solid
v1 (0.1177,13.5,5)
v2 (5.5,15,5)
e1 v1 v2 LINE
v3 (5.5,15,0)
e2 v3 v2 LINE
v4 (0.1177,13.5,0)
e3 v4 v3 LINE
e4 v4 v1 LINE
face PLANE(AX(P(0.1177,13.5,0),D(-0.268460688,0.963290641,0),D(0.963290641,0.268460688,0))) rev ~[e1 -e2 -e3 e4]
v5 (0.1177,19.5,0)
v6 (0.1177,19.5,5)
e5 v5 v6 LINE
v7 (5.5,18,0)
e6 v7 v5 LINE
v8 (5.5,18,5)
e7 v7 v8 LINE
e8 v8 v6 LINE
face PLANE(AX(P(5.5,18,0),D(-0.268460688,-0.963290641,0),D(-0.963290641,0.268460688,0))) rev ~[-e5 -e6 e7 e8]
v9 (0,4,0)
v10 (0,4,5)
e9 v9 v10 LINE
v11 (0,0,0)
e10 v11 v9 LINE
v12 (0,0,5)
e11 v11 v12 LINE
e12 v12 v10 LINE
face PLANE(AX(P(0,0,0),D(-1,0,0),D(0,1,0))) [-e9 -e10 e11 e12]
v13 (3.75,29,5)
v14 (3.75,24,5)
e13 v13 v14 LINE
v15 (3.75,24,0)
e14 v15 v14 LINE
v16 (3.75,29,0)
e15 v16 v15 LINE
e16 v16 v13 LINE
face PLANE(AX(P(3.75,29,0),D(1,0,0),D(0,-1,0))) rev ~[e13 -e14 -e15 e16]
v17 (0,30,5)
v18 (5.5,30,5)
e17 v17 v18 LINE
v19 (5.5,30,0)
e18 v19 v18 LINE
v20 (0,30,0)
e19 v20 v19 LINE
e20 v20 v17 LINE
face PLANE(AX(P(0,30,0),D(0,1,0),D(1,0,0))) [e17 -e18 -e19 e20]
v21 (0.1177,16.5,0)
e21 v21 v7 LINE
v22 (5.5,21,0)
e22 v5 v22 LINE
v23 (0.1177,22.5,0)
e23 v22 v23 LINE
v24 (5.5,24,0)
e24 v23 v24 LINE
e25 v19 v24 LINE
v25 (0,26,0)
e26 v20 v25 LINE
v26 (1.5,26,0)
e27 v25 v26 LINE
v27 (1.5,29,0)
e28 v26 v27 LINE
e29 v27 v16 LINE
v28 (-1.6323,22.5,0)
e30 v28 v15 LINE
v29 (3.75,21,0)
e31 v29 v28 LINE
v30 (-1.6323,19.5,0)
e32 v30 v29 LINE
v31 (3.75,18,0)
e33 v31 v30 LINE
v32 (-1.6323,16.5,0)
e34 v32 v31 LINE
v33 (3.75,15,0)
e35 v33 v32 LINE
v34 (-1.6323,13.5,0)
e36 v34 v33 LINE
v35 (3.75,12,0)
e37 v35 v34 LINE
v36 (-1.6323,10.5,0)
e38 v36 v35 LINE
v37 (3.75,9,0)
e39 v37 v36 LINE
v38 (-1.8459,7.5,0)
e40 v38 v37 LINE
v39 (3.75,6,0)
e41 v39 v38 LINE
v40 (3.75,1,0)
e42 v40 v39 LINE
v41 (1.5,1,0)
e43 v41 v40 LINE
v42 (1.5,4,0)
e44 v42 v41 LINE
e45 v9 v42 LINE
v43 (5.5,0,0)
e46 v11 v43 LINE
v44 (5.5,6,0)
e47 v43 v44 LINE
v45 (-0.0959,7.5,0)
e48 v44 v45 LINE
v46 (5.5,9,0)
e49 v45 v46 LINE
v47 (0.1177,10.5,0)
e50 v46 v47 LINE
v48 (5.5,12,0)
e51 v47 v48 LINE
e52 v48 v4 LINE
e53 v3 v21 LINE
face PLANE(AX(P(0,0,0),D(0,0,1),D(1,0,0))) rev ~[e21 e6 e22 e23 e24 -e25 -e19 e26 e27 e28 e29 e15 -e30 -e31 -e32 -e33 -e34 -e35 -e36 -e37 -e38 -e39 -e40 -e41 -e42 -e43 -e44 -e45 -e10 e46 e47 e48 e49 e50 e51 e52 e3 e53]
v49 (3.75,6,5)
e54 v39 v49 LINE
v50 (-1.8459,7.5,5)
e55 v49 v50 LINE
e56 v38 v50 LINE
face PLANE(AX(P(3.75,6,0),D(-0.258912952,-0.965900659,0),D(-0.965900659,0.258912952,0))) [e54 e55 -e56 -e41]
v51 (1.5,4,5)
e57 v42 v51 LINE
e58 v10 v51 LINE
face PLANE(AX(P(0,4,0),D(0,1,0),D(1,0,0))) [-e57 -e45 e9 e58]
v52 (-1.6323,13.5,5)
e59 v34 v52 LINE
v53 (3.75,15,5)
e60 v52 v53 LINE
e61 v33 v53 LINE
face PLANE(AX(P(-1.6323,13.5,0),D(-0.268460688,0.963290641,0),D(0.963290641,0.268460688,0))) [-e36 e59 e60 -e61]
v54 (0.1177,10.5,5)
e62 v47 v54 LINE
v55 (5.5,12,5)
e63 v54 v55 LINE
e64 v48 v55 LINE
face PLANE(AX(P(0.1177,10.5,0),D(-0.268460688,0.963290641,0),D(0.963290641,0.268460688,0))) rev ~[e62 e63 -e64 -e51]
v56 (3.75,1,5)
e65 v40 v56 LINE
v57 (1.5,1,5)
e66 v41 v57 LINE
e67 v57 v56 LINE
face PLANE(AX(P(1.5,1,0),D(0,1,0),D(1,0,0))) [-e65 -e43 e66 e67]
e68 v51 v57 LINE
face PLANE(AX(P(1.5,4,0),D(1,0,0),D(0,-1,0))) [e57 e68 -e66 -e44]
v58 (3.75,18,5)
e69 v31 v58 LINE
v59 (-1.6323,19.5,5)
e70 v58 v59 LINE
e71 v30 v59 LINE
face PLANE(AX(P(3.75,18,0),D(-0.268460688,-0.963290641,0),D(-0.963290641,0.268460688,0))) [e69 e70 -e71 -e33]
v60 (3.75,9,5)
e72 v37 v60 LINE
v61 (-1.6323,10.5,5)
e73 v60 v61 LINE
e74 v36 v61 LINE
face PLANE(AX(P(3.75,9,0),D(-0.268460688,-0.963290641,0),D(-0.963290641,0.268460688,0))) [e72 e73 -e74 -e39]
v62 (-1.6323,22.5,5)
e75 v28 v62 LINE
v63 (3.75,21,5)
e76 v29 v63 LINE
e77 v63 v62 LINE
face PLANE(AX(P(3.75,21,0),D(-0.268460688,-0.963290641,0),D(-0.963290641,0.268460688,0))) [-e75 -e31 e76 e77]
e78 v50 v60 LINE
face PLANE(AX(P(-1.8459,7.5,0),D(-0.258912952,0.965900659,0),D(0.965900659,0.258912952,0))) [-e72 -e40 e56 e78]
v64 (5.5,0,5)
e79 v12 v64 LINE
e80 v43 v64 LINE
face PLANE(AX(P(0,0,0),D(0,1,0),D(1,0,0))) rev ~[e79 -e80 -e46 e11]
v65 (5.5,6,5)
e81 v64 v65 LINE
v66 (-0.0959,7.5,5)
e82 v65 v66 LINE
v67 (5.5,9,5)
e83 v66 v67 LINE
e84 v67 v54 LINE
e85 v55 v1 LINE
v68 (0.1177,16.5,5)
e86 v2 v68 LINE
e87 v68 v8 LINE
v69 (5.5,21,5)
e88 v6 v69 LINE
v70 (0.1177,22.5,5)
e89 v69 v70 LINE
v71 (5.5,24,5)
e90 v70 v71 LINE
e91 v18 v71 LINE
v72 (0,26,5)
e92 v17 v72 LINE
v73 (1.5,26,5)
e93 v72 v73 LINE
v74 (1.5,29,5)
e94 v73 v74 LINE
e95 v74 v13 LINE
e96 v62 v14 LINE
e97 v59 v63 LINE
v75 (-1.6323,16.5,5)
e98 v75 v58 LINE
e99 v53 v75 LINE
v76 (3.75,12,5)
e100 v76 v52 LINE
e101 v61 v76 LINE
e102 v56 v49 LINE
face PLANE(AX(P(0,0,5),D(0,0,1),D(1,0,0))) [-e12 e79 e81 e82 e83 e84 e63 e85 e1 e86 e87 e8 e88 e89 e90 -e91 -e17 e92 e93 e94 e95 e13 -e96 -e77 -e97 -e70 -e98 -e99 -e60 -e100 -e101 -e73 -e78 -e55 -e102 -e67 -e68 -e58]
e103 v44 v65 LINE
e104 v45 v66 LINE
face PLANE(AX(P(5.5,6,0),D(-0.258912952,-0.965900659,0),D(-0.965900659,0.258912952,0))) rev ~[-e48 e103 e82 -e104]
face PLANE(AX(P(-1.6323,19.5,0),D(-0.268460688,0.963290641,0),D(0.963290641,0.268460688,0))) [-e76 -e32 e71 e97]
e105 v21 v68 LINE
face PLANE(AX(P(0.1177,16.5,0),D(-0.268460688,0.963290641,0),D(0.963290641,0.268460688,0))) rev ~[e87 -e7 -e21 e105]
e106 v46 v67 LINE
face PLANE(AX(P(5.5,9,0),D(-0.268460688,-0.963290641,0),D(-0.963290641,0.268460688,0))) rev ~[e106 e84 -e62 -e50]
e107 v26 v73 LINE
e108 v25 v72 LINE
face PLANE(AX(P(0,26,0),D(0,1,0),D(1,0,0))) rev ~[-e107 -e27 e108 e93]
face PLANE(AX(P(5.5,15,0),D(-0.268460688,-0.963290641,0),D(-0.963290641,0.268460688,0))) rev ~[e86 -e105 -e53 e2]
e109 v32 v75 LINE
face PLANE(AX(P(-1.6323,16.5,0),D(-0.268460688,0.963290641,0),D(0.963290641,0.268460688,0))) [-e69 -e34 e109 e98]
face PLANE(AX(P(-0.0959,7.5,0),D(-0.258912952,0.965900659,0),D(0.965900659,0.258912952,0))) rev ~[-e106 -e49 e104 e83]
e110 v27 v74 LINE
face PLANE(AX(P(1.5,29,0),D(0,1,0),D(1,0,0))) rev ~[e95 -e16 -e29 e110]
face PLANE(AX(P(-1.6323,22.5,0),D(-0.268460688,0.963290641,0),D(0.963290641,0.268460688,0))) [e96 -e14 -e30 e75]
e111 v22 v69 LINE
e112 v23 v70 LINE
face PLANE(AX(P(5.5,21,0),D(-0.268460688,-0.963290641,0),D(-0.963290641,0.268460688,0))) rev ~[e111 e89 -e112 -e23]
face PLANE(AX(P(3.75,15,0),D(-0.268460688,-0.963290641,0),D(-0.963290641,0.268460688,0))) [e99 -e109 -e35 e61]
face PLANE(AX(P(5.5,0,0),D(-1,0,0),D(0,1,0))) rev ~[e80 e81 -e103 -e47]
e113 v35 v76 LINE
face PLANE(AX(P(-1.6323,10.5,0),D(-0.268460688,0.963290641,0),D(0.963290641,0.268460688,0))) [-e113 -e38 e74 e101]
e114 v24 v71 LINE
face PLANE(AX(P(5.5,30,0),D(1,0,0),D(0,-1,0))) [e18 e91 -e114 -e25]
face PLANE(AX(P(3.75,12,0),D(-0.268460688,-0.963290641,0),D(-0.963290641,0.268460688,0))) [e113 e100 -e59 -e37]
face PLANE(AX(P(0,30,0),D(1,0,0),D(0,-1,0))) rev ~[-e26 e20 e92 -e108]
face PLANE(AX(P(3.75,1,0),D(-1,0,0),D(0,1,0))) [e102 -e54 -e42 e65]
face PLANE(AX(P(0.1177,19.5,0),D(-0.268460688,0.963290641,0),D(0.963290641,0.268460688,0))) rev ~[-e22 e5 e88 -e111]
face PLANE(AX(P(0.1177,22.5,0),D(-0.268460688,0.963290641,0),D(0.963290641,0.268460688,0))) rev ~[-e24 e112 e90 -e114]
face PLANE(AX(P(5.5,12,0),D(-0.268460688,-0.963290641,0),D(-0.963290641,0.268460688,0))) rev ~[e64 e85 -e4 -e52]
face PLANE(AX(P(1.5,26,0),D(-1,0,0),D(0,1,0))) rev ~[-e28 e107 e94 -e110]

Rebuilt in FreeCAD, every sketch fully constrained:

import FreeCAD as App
import Part
import Sketcher
from FreeCAD import Vector
Q = App.Units.Quantity

doc = App.newDocument("Part")
body = doc.addObject("PartDesign::Body", "Body")

sketch1 = doc.addObject("Sketcher::SketchObject", "Sketch")
body.addObject(sketch1)
sketch1.AttachmentSupport = (doc.XY_Plane, [""])
sketch1.MapMode = "FlatFace"
sketch1.addGeometry([
    Part.LineSegment(Vector(0, 4, 0), Vector(0, 0, 0)),
    Part.LineSegment(Vector(0, 0, 0), Vector(5.5, 0, 0)),
    Part.LineSegment(Vector(5.5, 0, 0), Vector(5.5, 6, 0)),
    Part.LineSegment(Vector(5.5, 6, 0), Vector(-0.0959, 7.5, 0)),
    Part.LineSegment(Vector(-0.0959, 7.5, 0), Vector(5.5, 9, 0)),
    Part.LineSegment(Vector(5.5, 9, 0), Vector(0.1177, 10.5, 0)),
    Part.LineSegment(Vector(0.1177, 10.5, 0), Vector(5.5, 12, 0)),
    Part.LineSegment(Vector(5.5, 12, 0), Vector(0.1177, 13.5, 0)),
    Part.LineSegment(Vector(0.1177, 13.5, 0), Vector(5.5, 15, 0)),
    Part.LineSegment(Vector(5.5, 15, 0), Vector(0.1177, 16.5, 0)),
    Part.LineSegment(Vector(0.1177, 16.5, 0), Vector(5.5, 18, 0)),
    Part.LineSegment(Vector(5.5, 18, 0), Vector(0.1177, 19.5, 0)),
    Part.LineSegment(Vector(0.1177, 19.5, 0), Vector(5.5, 21, 0)),
    Part.LineSegment(Vector(5.5, 21, 0), Vector(0.1177, 22.5, 0)),
    Part.LineSegment(Vector(0.1177, 22.5, 0), Vector(5.5, 24, 0)),
    Part.LineSegment(Vector(5.5, 24, 0), Vector(5.5, 30, 0)),
    Part.LineSegment(Vector(5.5, 30, 0), Vector(0, 30, 0)),
    Part.LineSegment(Vector(0, 30, 0), Vector(0, 26, 0)),
    Part.LineSegment(Vector(0, 26, 0), Vector(1.5, 26, 0)),
    Part.LineSegment(Vector(1.5, 26, 0), Vector(1.5, 29, 0)),
    Part.LineSegment(Vector(1.5, 29, 0), Vector(3.75, 29, 0)),
    Part.LineSegment(Vector(3.75, 29, 0), Vector(3.75, 24, 0)),
    Part.LineSegment(Vector(3.75, 24, 0), Vector(-1.6323, 22.5, 0)),
    Part.LineSegment(Vector(-1.6323, 22.5, 0), Vector(3.75, 21, 0)),
    Part.LineSegment(Vector(3.75, 21, 0), Vector(-1.6323, 19.5, 0)),
    Part.LineSegment(Vector(-1.6323, 19.5, 0), Vector(3.75, 18, 0)),
    Part.LineSegment(Vector(3.75, 18, 0), Vector(-1.6323, 16.5, 0)),
    Part.LineSegment(Vector(-1.6323, 16.5, 0), Vector(3.75, 15, 0)),
    Part.LineSegment(Vector(3.75, 15, 0), Vector(-1.6323, 13.5, 0)),
    Part.LineSegment(Vector(-1.6323, 13.5, 0), Vector(3.75, 12, 0)),
    Part.LineSegment(Vector(3.75, 12, 0), Vector(-1.6323, 10.5, 0)),
    Part.LineSegment(Vector(-1.6323, 10.5, 0), Vector(3.75, 9, 0)),
    Part.LineSegment(Vector(3.75, 9, 0), Vector(-1.8459, 7.5, 0)),
    Part.LineSegment(Vector(-1.8459, 7.5, 0), Vector(3.75, 6, 0)),
    Part.LineSegment(Vector(3.75, 6, 0), Vector(3.75, 1, 0)),
    Part.LineSegment(Vector(3.75, 1, 0), Vector(1.5, 1, 0)),
    Part.LineSegment(Vector(1.5, 1, 0), Vector(1.5, 4, 0)),
    Part.LineSegment(Vector(1.5, 4, 0), Vector(0, 4, 0)),
], False)
sketch1.addConstraint([
    Sketcher.Constraint("Coincident", 0, 2, 1, 1),
    Sketcher.Constraint("Coincident", 1, 2, 2, 1),
    Sketcher.Constraint("Coincident", 2, 2, 3, 1),
    Sketcher.Constraint("Coincident", 3, 2, 4, 1),
    Sketcher.Constraint("Coincident", 4, 2, 5, 1),
    Sketcher.Constraint("Coincident", 5, 2, 6, 1),
    Sketcher.Constraint("Coincident", 6, 2, 7, 1),
    Sketcher.Constraint("Coincident", 7, 2, 8, 1),
    Sketcher.Constraint("Coincident", 8, 2, 9, 1),
    Sketcher.Constraint("Coincident", 9, 2, 10, 1),
    Sketcher.Constraint("Coincident", 10, 2, 11, 1),
    Sketcher.Constraint("Coincident", 11, 2, 12, 1),
    Sketcher.Constraint("Coincident", 12, 2, 13, 1),
    Sketcher.Constraint("Coincident", 13, 2, 14, 1),
    Sketcher.Constraint("Coincident", 14, 2, 15, 1),
    Sketcher.Constraint("Coincident", 15, 2, 16, 1),
    Sketcher.Constraint("Coincident", 16, 2, 17, 1),
    Sketcher.Constraint("Coincident", 17, 2, 18, 1),
    Sketcher.Constraint("Coincident", 18, 2, 19, 1),
    Sketcher.Constraint("Coincident", 19, 2, 20, 1),
    Sketcher.Constraint("Coincident", 20, 2, 21, 1),
    Sketcher.Constraint("Coincident", 21, 2, 22, 1),
    Sketcher.Constraint("Coincident", 22, 2, 23, 1),
    Sketcher.Constraint("Coincident", 23, 2, 24, 1),
    Sketcher.Constraint("Coincident", 24, 2, 25, 1),
    Sketcher.Constraint("Coincident", 25, 2, 26, 1),
    Sketcher.Constraint("Coincident", 26, 2, 27, 1),
    Sketcher.Constraint("Coincident", 27, 2, 28, 1),
    Sketcher.Constraint("Coincident", 28, 2, 29, 1),
    Sketcher.Constraint("Coincident", 29, 2, 30, 1),
    Sketcher.Constraint("Coincident", 30, 2, 31, 1),
    Sketcher.Constraint("Coincident", 31, 2, 32, 1),
    Sketcher.Constraint("Coincident", 32, 2, 33, 1),
    Sketcher.Constraint("Coincident", 33, 2, 34, 1),
    Sketcher.Constraint("Coincident", 34, 2, 35, 1),
    Sketcher.Constraint("Coincident", 35, 2, 36, 1),
    Sketcher.Constraint("Coincident", 36, 2, 37, 1),
    Sketcher.Constraint("Coincident", 37, 2, 0, 1),
    Sketcher.Constraint("Vertical", 0),
    Sketcher.Constraint("Horizontal", 1),
    Sketcher.Constraint("Vertical", 2),
    Sketcher.Constraint("Vertical", 15),
    Sketcher.Constraint("Horizontal", 16),
    Sketcher.Constraint("Vertical", 17),
    Sketcher.Constraint("Horizontal", 18),
    Sketcher.Constraint("Vertical", 19),
    Sketcher.Constraint("Horizontal", 20),
    Sketcher.Constraint("Vertical", 21),
    Sketcher.Constraint("Vertical", 34),
    Sketcher.Constraint("Horizontal", 35),
    Sketcher.Constraint("Vertical", 36),
    Sketcher.Constraint("Horizontal", 37),
    Sketcher.Constraint("Coincident", 0, 2, -1, 1),
    Sketcher.Constraint("PointOnObject", 16, 2, -2),
    Sketcher.Constraint("Parallel", 5, 7),
    Sketcher.Constraint("Parallel", 6, 8),
    Sketcher.Constraint("Parallel", 7, 9),
    Sketcher.Constraint("Parallel", 8, 10),
    Sketcher.Constraint("Parallel", 9, 11),
    Sketcher.Constraint("Parallel", 10, 12),
    Sketcher.Constraint("Parallel", 11, 13),
    Sketcher.Constraint("Parallel", 12, 14),
    Sketcher.Constraint("Parallel", 14, 22),
    Sketcher.Constraint("Parallel", 13, 23),
    Sketcher.Constraint("Parallel", 22, 24),
    Sketcher.Constraint("Parallel", 23, 25),
    Sketcher.Constraint("Parallel", 24, 26),
    Sketcher.Constraint("Parallel", 25, 27),
    Sketcher.Constraint("Parallel", 26, 28),
    Sketcher.Constraint("Parallel", 27, 29),
    Sketcher.Constraint("Parallel", 28, 30),
    Sketcher.Constraint("Parallel", 29, 31),
    Sketcher.Constraint("Parallel", 4, 32),
    Sketcher.Constraint("Parallel", 3, 33),
    Sketcher.Constraint("Horizontal", 14, 2, 21, 2),
    Sketcher.Constraint("Horizontal", 13, 2, 22, 2),
    Sketcher.Constraint("Horizontal", 12, 2, 23, 2),
    Sketcher.Constraint("Horizontal", 11, 2, 24, 2),
    Sketcher.Constraint("Horizontal", 10, 2, 25, 2),
    Sketcher.Constraint("Horizontal", 9, 2, 26, 2),
    Sketcher.Constraint("Horizontal", 8, 2, 27, 2),
    Sketcher.Constraint("Horizontal", 7, 2, 28, 2),
    Sketcher.Constraint("Horizontal", 6, 2, 29, 2),
    Sketcher.Constraint("Horizontal", 5, 2, 30, 2),
    Sketcher.Constraint("Horizontal", 4, 2, 31, 2),
    Sketcher.Constraint("Horizontal", 3, 2, 32, 2),
    Sketcher.Constraint("Horizontal", 2, 2, 33, 2),
    Sketcher.Constraint("Vertical", 2, 2, 4, 2),
    Sketcher.Constraint("Vertical", 4, 2, 6, 2),
    Sketcher.Constraint("Vertical", 5, 2, 7, 2),
    Sketcher.Constraint("Vertical", 6, 2, 8, 2),
    Sketcher.Constraint("Vertical", 7, 2, 9, 2),
    Sketcher.Constraint("Vertical", 8, 2, 10, 2),
    Sketcher.Constraint("Vertical", 9, 2, 11, 2),
    Sketcher.Constraint("Vertical", 10, 2, 12, 2),
    Sketcher.Constraint("Vertical", 11, 2, 13, 2),
    Sketcher.Constraint("Vertical", 12, 2, 14, 2),
    Sketcher.Constraint("Vertical", 19, 2, 35, 2),
    Sketcher.Constraint("Equal", 2, 15),
    Sketcher.Constraint("Equal", 0, 17),
    Sketcher.Constraint("Equal", 21, 34),
    Sketcher.Constraint("Equal", 3, 4),
    Sketcher.Constraint("Equal", 5, 6),
    Sketcher.Constraint("DistanceY", 0, 2, 0, 1, Q("4 mm")),
    Sketcher.Constraint("DistanceY", 2, 1, 2, 2, Q("6 mm")),
    Sketcher.Constraint("DistanceY", 19, 1, 19, 2, Q("3 mm")),
    Sketcher.Constraint("DistanceX", 1, 1, 1, 2, Q("5.5 mm")),
    Sketcher.Constraint("DistanceX", 18, 1, 18, 2, Q("1.5 mm")),
    Sketcher.Constraint("DistanceY", -1, 1, 8, 2, Q("15 mm")),
    Sketcher.Constraint("DistanceY", 2, 2, 4, 2, Q("3 mm")),
    Sketcher.Constraint("DistanceX", 20, 1, 20, 2, Q("2.25 mm")),
    Sketcher.Constraint("DistanceX", 3, 2, -1, 1, Q("0.096 mm")),
    Sketcher.Constraint("Distance", 5, Q("5.5874 mm")),
])
pad1 = doc.addObject("PartDesign::Pad", "Pad")
body.addObject(pad1)
pad1.Profile = sketch1
pad1.Length = 5

doc.recompute()
